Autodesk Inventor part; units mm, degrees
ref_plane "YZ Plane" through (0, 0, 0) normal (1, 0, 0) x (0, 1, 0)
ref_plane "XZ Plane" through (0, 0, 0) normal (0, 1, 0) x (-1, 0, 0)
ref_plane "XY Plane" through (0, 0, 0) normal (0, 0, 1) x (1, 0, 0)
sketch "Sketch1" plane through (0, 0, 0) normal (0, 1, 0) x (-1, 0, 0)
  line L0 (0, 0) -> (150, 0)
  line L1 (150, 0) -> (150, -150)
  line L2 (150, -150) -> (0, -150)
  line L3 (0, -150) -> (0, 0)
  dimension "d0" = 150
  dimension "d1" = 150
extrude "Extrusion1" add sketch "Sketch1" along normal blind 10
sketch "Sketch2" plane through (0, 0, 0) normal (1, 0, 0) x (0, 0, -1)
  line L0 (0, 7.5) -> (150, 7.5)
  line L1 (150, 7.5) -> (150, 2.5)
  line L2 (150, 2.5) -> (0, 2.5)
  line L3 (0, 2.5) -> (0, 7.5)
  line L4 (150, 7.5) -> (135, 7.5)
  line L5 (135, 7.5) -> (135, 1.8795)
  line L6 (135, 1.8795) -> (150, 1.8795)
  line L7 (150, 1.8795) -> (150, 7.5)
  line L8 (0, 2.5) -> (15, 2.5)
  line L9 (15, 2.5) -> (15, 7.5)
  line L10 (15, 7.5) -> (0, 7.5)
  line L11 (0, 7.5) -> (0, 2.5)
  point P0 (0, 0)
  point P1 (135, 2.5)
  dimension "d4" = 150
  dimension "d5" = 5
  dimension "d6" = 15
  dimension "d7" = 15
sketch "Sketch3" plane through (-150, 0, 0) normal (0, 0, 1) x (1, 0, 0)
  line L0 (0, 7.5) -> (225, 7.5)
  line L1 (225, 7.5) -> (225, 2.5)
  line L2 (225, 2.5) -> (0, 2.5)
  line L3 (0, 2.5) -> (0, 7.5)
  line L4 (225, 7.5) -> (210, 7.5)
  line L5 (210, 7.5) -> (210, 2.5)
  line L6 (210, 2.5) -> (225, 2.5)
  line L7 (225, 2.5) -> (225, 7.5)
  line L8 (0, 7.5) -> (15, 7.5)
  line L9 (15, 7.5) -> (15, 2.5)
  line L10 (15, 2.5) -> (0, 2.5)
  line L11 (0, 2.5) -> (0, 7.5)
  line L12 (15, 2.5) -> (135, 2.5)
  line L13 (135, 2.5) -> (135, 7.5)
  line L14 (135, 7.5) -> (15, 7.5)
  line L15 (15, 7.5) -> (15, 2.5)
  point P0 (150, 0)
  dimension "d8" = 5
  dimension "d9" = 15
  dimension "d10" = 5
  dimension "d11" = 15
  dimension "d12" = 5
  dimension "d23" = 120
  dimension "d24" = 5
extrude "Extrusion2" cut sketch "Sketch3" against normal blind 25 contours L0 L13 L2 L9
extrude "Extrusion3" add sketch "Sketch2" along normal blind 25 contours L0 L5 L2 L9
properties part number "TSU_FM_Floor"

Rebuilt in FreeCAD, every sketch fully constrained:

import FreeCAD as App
import Part
import Sketcher

doc = App.newDocument("Part")
body = doc.addObject("PartDesign::Body", "Body")

# Sketch on XZ plane
sketch1 = body.newObject("Sketcher::SketchObject", "Sketch")
sketch1.AttachmentSupport = (doc.getObject("XZ_Plane"), [""])
sketch1.MapMode = "FlatFace"
sketch1.addGeometry([
    Part.LineSegment(App.Vector(-150, 0, 0), App.Vector(0, 0, 0)),
    Part.LineSegment(App.Vector(0, 0, 0), App.Vector(0, -150, 0)),
    Part.LineSegment(App.Vector(0, -150, 0), App.Vector(-150, -150, 0)),
    Part.LineSegment(App.Vector(-150, -150, 0), App.Vector(-150, 0, 0)),
], False)
sketch1.addConstraint([
    Sketcher.Constraint("Coincident", 0, 2, 1, 1),
    Sketcher.Constraint("Coincident", 1, 2, 2, 1),
    Sketcher.Constraint("Coincident", 2, 2, 3, 1),
    Sketcher.Constraint("Coincident", 3, 2, 0, 1),
    Sketcher.Constraint("Horizontal", 0),
    Sketcher.Constraint("Vertical", 1),
    Sketcher.Constraint("Horizontal", 2),
    Sketcher.Constraint("Vertical", 3),
    Sketcher.Constraint("Coincident", 0, 2, -1, 1),
    Sketcher.Constraint("Equal", 2, 1),
    Sketcher.Constraint("DistanceX", 0, 1, 0, 2, 150.0),
])
pad1 = body.newObject("PartDesign::Pad", "Pad")
pad1.Profile = sketch1
pad1.Length = 10
pad1.Reversed = True

# Sketch on XY plane
sketch2 = body.newObject("Sketcher::SketchObject", "Sketch001")
sketch2.AttachmentSupport = (doc.getObject("XY_Plane"), [""])
sketch2.MapMode = "FlatFace"
sketch2.addGeometry([
    Part.LineSegment(App.Vector(-15, 8, 0), App.Vector(-135, 8, 0)),
    Part.LineSegment(App.Vector(-135, 8, 0), App.Vector(-135, 2, 0)),
    Part.LineSegment(App.Vector(-135, 2, 0), App.Vector(-15, 2, 0)),
    Part.LineSegment(App.Vector(-15, 2, 0), App.Vector(-15, 8, 0)),
], False)
sketch2.addConstraint([
    Sketcher.Constraint("Coincident", 0, 2, 1, 1),
    Sketcher.Constraint("Coincident", 1, 2, 2, 1),
    Sketcher.Constraint("Coincident", 2, 2, 3, 1),
    Sketcher.Constraint("Coincident", 3, 2, 0, 1),
    Sketcher.Constraint("Horizontal", 0),
    Sketcher.Constraint("Vertical", 1),
    Sketcher.Constraint("Horizontal", 2),
    Sketcher.Constraint("Vertical", 3),
    Sketcher.Constraint("DistanceX", 0, 2, 0, 1, 120.0),
    Sketcher.Constraint("DistanceY", 1, 2, 1, 1, 5.0),
    Sketcher.Constraint("DistanceX", 2, 2, -1, 1, 15.0),
    Sketcher.Constraint("DistanceY", -1, 1, 0, 2, 7.5),
])
pocket1 = body.newObject("PartDesign::Pocket", "Pocket")
pocket1.Profile = sketch2
pocket1.Length = 25

# Sketch on YZ plane
sketch3 = body.newObject("Sketcher::SketchObject", "Sketch002")
sketch3.AttachmentSupport = (doc.getObject("YZ_Plane"), [""])
sketch3.MapMode = "FlatFace"
sketch3.addGeometry([
    Part.LineSegment(App.Vector(8, -135, 0), App.Vector(8, -15, 0)),
    Part.LineSegment(App.Vector(8, -15, 0), App.Vector(2, -15, 0)),
    Part.LineSegment(App.Vector(2, -15, 0), App.Vector(2, -135, 0)),
    Part.LineSegment(App.Vector(2, -135, 0), App.Vector(8, -135, 0)),
], False)
sketch3.addConstraint([
    Sketcher.Constraint("Coincident", 0, 2, 1, 1),
    Sketcher.Constraint("Coincident", 1, 2, 2, 1),
    Sketcher.Constraint("Coincident", 2, 2, 3, 1),
    Sketcher.Constraint("Coincident", 3, 2, 0, 1),
    Sketcher.Constraint("Vertical", 0),
    Sketcher.Constraint("Horizontal", 1),
    Sketcher.Constraint("Vertical", 2),
    Sketcher.Constraint("Horizontal", 3),
    Sketcher.Constraint("DistanceX", 1, 2, 1, 1, 5.0),
    Sketcher.Constraint("DistanceY", 0, 2, -1, 1, 15.0),
    Sketcher.Constraint("DistanceY", 0, 1, 0, 2, 120.0),
    Sketcher.Constraint("DistanceX", -1, 1, 0, 2, 7.5),
])
pad2 = body.newObject("PartDesign::Pad", "Pad001")
pad2.Profile = sketch3
pad2.Length = 25

doc.recompute()
